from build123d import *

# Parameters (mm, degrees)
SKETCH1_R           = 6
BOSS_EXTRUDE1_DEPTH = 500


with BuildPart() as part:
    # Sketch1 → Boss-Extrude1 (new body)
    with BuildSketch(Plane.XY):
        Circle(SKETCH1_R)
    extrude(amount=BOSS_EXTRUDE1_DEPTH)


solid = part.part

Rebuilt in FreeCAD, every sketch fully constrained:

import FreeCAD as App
import Part
import Sketcher
Q = App.Units.Quantity

doc = App.newDocument("Part")
params = doc.addObject("Spreadsheet::Sheet", "Params")
for row, (alias, value) in enumerate([
    ("sketch1_diameter", "12 mm"),
    ("pad1_length", "500 mm"),
], start=1):
    params.set(f"A{row}", alias)
    params.set(f"B{row}", "=" + value)
    params.setAlias(f"B{row}", alias)

body = doc.addObject("PartDesign::Body", "Body")

# Sketch on XY plane
sketch1 = doc.addObject("Sketcher::SketchObject", "Sketch")
body.addObject(sketch1)
sketch1.AttachmentSupport = (doc.XY_Plane, [""])
sketch1.MapMode = "FlatFace"
sketch1.addGeometry(Part.Circle(App.Vector(0, 0, 0), App.Vector(0, 0, 1), 6), False)
sketch1.addConstraint([
    Sketcher.Constraint("Coincident", 0, 3, -1, 1),
    Sketcher.Constraint("Diameter", 0, Q("12 mm")),
])
sketch1.setExpression("Constraints[1]", "Params.sketch1_diameter")
pad1 = doc.addObject("PartDesign::Pad", "Pad")
body.addObject(pad1)
pad1.Profile = sketch1
pad1.setExpression("Length", "Params.pad1_length")

doc.recompute()
